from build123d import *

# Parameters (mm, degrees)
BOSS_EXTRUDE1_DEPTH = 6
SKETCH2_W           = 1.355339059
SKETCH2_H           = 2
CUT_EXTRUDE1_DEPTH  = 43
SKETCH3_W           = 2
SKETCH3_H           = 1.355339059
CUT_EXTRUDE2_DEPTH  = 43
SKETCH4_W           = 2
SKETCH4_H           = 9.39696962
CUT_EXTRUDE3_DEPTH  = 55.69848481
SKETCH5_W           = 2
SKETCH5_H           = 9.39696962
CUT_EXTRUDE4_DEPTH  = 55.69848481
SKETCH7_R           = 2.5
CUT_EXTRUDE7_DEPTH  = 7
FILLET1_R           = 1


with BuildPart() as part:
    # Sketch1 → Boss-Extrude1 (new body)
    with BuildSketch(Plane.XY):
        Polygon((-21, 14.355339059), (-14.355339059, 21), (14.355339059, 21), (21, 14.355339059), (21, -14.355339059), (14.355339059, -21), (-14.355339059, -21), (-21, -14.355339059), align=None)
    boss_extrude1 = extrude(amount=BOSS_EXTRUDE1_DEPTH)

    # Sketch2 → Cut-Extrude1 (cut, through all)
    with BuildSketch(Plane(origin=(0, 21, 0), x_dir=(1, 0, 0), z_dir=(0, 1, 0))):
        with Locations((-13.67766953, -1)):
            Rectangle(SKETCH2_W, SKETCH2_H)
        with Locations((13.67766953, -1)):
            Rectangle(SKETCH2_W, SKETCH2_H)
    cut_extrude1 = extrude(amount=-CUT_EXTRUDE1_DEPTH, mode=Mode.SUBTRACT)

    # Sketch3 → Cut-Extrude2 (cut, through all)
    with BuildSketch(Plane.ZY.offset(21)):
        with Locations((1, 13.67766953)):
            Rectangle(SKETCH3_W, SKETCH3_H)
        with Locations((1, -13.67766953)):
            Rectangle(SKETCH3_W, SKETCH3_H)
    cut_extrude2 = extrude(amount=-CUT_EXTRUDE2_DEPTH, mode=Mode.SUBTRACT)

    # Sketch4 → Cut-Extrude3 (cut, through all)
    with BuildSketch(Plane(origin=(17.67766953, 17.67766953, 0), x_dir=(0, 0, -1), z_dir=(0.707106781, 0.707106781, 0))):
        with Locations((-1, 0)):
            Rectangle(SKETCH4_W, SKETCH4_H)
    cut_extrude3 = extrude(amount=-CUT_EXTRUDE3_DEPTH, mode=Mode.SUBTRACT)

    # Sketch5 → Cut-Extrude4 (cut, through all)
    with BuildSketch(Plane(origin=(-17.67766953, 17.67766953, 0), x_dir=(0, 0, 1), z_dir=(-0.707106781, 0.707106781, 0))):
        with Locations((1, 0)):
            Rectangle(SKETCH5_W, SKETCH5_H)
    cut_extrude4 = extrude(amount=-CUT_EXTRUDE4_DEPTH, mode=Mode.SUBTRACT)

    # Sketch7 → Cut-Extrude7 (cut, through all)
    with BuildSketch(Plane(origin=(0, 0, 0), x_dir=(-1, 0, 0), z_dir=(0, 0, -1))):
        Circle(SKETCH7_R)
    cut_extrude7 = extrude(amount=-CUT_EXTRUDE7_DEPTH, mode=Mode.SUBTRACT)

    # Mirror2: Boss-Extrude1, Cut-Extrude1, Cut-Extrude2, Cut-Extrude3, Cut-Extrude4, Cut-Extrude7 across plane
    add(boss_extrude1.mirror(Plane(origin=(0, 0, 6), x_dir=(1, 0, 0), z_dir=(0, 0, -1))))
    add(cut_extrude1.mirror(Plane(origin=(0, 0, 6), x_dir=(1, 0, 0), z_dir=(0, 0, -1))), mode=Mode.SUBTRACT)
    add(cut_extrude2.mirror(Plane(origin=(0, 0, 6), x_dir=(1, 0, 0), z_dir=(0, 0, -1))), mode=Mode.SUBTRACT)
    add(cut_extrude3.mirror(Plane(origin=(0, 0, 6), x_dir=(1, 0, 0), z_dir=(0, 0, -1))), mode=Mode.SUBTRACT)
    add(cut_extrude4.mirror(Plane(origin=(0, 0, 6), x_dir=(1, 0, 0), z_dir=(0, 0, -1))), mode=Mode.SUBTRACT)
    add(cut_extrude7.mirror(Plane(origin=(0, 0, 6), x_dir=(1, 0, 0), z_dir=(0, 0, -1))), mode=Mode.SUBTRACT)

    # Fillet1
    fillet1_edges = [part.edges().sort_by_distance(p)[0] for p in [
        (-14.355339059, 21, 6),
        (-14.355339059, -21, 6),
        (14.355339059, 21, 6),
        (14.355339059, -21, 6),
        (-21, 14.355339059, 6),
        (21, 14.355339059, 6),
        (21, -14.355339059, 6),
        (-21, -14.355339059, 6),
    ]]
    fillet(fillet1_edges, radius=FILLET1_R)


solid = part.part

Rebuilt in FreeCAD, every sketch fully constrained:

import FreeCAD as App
import Part
import Sketcher


def edges_at(feature, points):
    """Names of the edges that pass closest to the given points."""
    edges = feature.Shape.Edges
    near = lambda p: min(range(len(edges)), key=lambda i: edges[i].distToShape(Part.Vertex(*p))[0])
    return sorted({f"Edge{near(p) + 1}" for p in points})


def add_polygon(sketch, points):
    """Adds a closed chain of lines whose ends are joined by coincident constraints."""
    first, n = sketch.GeometryCount, len(points)
    for a, b in zip(points, points[1:] + points[:1]):
        sketch.addGeometry(Part.LineSegment(App.Vector(*a, 0), App.Vector(*b, 0)), False)
    for i in range(n):
        sketch.addConstraint(Sketcher.Constraint("Coincident", first + i, 2, first + (i + 1) % n, 1))

doc = App.newDocument("Part")
body = doc.addObject("PartDesign::Body", "Body")

# Sketch on XY plane
sketch1 = doc.addObject("Sketcher::SketchObject", "Sketch")
body.addObject(sketch1)
sketch1.AttachmentSupport = (doc.XY_Plane, [""])
sketch1.MapMode = "FlatFace"
add_polygon(sketch1, [(-14, 21), (-21, 14), (-21, -14), (-14, -21), (14, -21), (21, -14), (21, 14), (14, 21)])  # lines 0-7
sketch1.addConstraint(Sketcher.Constraint("Vertical", 1))
sketch1.addConstraint(Sketcher.Constraint("Horizontal", 3))
sketch1.addConstraint(Sketcher.Constraint("Vertical", 5))
sketch1.addConstraint(Sketcher.Constraint("Horizontal", 7))
sketch1.addConstraint(Sketcher.Constraint("Symmetric", 0, 2, 4, 2, -1, 1))
sketch1.addConstraint(Sketcher.Constraint("Symmetric", 2, 2, 6, 2, -1, 1))
sketch1.addConstraint(Sketcher.Constraint("Perpendicular", 0, 2))
sketch1.addConstraint(Sketcher.Constraint("Perpendicular", 2, 4))
sketch1.addConstraint(Sketcher.Constraint("Perpendicular", 4, 6))
sketch1.addConstraint(Sketcher.Constraint("Horizontal", 1, 2, 4, 2))
sketch1.addConstraint(Sketcher.Constraint("Vertical", 3, 2, 6, 2))
sketch1.addConstraint(Sketcher.Constraint("Equal", 7, 1))
sketch1.addConstraint(Sketcher.Constraint("DistanceX", 0, 2, -1, 1, 21.0))
sketch1.addConstraint(Sketcher.Constraint("DistanceX", 3, 1, 3, 2, 28.710678))
pad1 = doc.addObject("PartDesign::Pad", "Pad")
body.addObject(pad1)
pad1.Profile = sketch1
pad1.Length = 6

# Sketch on XZ plane
sketch2 = doc.addObject("Sketcher::SketchObject", "Sketch001")
body.addObject(sketch2)
sketch2.AttachmentSupport = (doc.XZ_Plane, [""])
sketch2.MapMode = "FlatFace"
sketch2.AttachmentOffset = App.Placement(App.Vector(0, 0, -21), App.Rotation())
add_polygon(sketch2, [(-14.4, 0), (-14.4, 2), (-13, 2), (-13, 0)])  # lines 0-3
add_polygon(sketch2, [(13, 0), (13, 2), (14.4, 2), (14.4, 0)])  # lines 4-7
sketch2.addConstraint(Sketcher.Constraint("Vertical", 0))
sketch2.addConstraint(Sketcher.Constraint("Horizontal", 1))
sketch2.addConstraint(Sketcher.Constraint("Vertical", 2))
sketch2.addConstraint(Sketcher.Constraint("Horizontal", 3))
sketch2.addConstraint(Sketcher.Constraint("Vertical", 4))
sketch2.addConstraint(Sketcher.Constraint("Horizontal", 5))
sketch2.addConstraint(Sketcher.Constraint("Vertical", 6))
sketch2.addConstraint(Sketcher.Constraint("Horizontal", 7))
sketch2.addConstraint(Sketcher.Constraint("Symmetric", 3, 2, 6, 2, -1, 1))
sketch2.addConstraint(Sketcher.Constraint("Symmetric", 1, 2, 4, 2, -2))
sketch2.addConstraint(Sketcher.Constraint("PointOnObject", 2, 2, -1))
sketch2.addConstraint(Sketcher.Constraint("DistanceY", 0, 1, 0, 2, 2.0))
sketch2.addConstraint(Sketcher.Constraint("DistanceX", 1, 2, -1, 1, 13.0))
sketch2.addConstraint(Sketcher.Constraint("DistanceX", 1, 1, 1, 2, 1.355339))
pocket1 = doc.addObject("PartDesign::Pocket", "Pocket")
body.addObject(pocket1)
pocket1.Profile = sketch2
pocket1.Type = "ThroughAll"
pocket1.Reversed = True

# Sketch on YZ plane
sketch3 = doc.addObject("Sketcher::SketchObject", "Sketch002")
body.addObject(sketch3)
sketch3.AttachmentSupport = (doc.YZ_Plane, [""])
sketch3.MapMode = "FlatFace"
sketch3.AttachmentOffset = App.Placement(App.Vector(0, 0, -21), App.Rotation())
add_polygon(sketch3, [(14.4, 0), (13, 0), (13, 2), (14.4, 2)])  # lines 0-3
add_polygon(sketch3, [(-13, 0), (-14.4, 0), (-14.4, 2), (-13, 2)])  # lines 4-7
sketch3.addConstraint(Sketcher.Constraint("Horizontal", 0))
sketch3.addConstraint(Sketcher.Constraint("Vertical", 1))
sketch3.addConstraint(Sketcher.Constraint("Horizontal", 2))
sketch3.addConstraint(Sketcher.Constraint("Vertical", 3))
sketch3.addConstraint(Sketcher.Constraint("Horizontal", 4))
sketch3.addConstraint(Sketcher.Constraint("Vertical", 5))
sketch3.addConstraint(Sketcher.Constraint("Horizontal", 6))
sketch3.addConstraint(Sketcher.Constraint("Vertical", 7))
sketch3.addConstraint(Sketcher.Constraint("Symmetric", 3, 2, 4, 2, -1, 1))
sketch3.addConstraint(Sketcher.Constraint("Symmetric", 1, 2, 6, 2, -2))
sketch3.addConstraint(Sketcher.Constraint("PointOnObject", 0, 2, -1))
sketch3.addConstraint(Sketcher.Constraint("DistanceY", 1, 1, 1, 2, 2.0))
sketch3.addConstraint(Sketcher.Constraint("DistanceX", -1, 1, 0, 2, 13.0))
sketch3.addConstraint(Sketcher.Constraint("DistanceX", 0, 2, 0, 1, 1.355339))
pocket2 = doc.addObject("PartDesign::Pocket", "Pocket001")
body.addObject(pocket2)
pocket2.Profile = sketch3
pocket2.Type = "ThroughAll"
pocket2.Reversed = True

# Sketch on an angled plane
sketch4 = doc.addObject("Sketcher::SketchObject", "Sketch003")
body.addObject(sketch4)
sketch4.Placement = App.Placement(App.Vector(17.67767, 17.67767, 0), App.Rotation(App.Vector(0, 0, -1), App.Vector(-0.707106781, 0.707106781, 0), App.Vector(0.707106781, 0.707106781, 0), "ZXY"))
add_polygon(sketch4, [(-2, 4.7), (-2, -4.7), (0, -4.7), (0, 4.7)])  # lines 0-3
sketch4.addConstraint(Sketcher.Constraint("Vertical", 0))
sketch4.addConstraint(Sketcher.Constraint("Horizontal", 1))
sketch4.addConstraint(Sketcher.Constraint("Vertical", 2))
sketch4.addConstraint(Sketcher.Constraint("Horizontal", 3))
sketch4.addConstraint(Sketcher.Constraint("Symmetric", 1, 2, 2, 2, -1, 1))
sketch4.addConstraint(Sketcher.Constraint("DistanceX", 1, 1, 1, 2, 2.0))
sketch4.addConstraint(Sketcher.Constraint("DistanceY", 0, 2, 0, 1, 9.39697))
pocket3 = doc.addObject("PartDesign::Pocket", "Pocket002")
body.addObject(pocket3)
pocket3.Profile = sketch4
pocket3.Type = "ThroughAll"

# Sketch on an angled plane
sketch5 = doc.addObject("Sketcher::SketchObject", "Sketch004")
body.addObject(sketch5)
sketch5.Placement = App.Placement(App.Vector(-17.67767, 17.67767, 0), App.Rotation(App.Vector(0, 0, 1), App.Vector(0.707106781, 0.707106781, 0), App.Vector(-0.707106781, 0.707106781, 0), "ZXY"))
add_polygon(sketch5, [(0, 4.7), (0, -4.7), (2, -4.7), (2, 4.7)])  # lines 0-3
sketch5.addConstraint(Sketcher.Constraint("Vertical", 0))
sketch5.addConstraint(Sketcher.Constraint("Horizontal", 1))
sketch5.addConstraint(Sketcher.Constraint("Vertical", 2))
sketch5.addConstraint(Sketcher.Constraint("Horizontal", 3))
sketch5.addConstraint(Sketcher.Constraint("Symmetric", 0, 2, 3, 2, -1, 1))
sketch5.addConstraint(Sketcher.Constraint("DistanceX", 1, 1, 1, 2, 2.0))
sketch5.addConstraint(Sketcher.Constraint("DistanceY", 0, 2, 0, 1, 9.39697))
pocket4 = doc.addObject("PartDesign::Pocket", "Pocket003")
body.addObject(pocket4)
pocket4.Profile = sketch5
pocket4.Type = "ThroughAll"

# Sketch on XY plane
sketch6 = doc.addObject("Sketcher::SketchObject", "Sketch005")
body.addObject(sketch6)
sketch6.AttachmentSupport = (doc.XY_Plane, [""])
sketch6.MapMode = "FlatFace"
sketch6.addGeometry(Part.Circle(App.Vector(0, 0, 0), App.Vector(0, 0, 1), 2.5), False)
sketch6.addConstraint(Sketcher.Constraint("Coincident", 0, 3, -1, 1))
sketch6.addConstraint(Sketcher.Constraint("Diameter", 0, 5.0))
pocket5 = doc.addObject("PartDesign::Pocket", "Pocket004")
body.addObject(pocket5)
pocket5.Profile = sketch6
pocket5.Type = "ThroughAll"
pocket5.Reversed = True
doc.recompute()

datumplane = doc.addObject("PartDesign::Plane", "DatumPlane")
body.addObject(datumplane)
datumplane.AttachmentSupport = (doc.XY_Plane, [""])
datumplane.MapMode = "FlatFace"
datumplane.AttachmentOffset = App.Placement(App.Vector(0, 0, 6), App.Rotation())
mirrored = doc.addObject("PartDesign::Mirrored", "Mirrored")
body.addObject(mirrored)
mirrored.Originals = [pad1, pocket1, pocket2, pocket3, pocket4, pocket5]
mirrored.MirrorPlane = (datumplane, [""])
body.Tip = mirrored
doc.recompute()

fillet = doc.addObject("PartDesign::Fillet", "Fillet")
body.addObject(fillet)
fillet.Base = (mirrored, edges_at(mirrored, [
    (-14.355, 21, 6),
    (-14.355, -21, 6),
    (14.355, 21, 6),
    (14.355, -21, 6),
    (-21, 14.355, 6),
    (21, 14.355, 6),
    (21, -14.355, 6),
    (-21, -14.355, 6),
]))
fillet.Radius = 1

doc.recompute()
